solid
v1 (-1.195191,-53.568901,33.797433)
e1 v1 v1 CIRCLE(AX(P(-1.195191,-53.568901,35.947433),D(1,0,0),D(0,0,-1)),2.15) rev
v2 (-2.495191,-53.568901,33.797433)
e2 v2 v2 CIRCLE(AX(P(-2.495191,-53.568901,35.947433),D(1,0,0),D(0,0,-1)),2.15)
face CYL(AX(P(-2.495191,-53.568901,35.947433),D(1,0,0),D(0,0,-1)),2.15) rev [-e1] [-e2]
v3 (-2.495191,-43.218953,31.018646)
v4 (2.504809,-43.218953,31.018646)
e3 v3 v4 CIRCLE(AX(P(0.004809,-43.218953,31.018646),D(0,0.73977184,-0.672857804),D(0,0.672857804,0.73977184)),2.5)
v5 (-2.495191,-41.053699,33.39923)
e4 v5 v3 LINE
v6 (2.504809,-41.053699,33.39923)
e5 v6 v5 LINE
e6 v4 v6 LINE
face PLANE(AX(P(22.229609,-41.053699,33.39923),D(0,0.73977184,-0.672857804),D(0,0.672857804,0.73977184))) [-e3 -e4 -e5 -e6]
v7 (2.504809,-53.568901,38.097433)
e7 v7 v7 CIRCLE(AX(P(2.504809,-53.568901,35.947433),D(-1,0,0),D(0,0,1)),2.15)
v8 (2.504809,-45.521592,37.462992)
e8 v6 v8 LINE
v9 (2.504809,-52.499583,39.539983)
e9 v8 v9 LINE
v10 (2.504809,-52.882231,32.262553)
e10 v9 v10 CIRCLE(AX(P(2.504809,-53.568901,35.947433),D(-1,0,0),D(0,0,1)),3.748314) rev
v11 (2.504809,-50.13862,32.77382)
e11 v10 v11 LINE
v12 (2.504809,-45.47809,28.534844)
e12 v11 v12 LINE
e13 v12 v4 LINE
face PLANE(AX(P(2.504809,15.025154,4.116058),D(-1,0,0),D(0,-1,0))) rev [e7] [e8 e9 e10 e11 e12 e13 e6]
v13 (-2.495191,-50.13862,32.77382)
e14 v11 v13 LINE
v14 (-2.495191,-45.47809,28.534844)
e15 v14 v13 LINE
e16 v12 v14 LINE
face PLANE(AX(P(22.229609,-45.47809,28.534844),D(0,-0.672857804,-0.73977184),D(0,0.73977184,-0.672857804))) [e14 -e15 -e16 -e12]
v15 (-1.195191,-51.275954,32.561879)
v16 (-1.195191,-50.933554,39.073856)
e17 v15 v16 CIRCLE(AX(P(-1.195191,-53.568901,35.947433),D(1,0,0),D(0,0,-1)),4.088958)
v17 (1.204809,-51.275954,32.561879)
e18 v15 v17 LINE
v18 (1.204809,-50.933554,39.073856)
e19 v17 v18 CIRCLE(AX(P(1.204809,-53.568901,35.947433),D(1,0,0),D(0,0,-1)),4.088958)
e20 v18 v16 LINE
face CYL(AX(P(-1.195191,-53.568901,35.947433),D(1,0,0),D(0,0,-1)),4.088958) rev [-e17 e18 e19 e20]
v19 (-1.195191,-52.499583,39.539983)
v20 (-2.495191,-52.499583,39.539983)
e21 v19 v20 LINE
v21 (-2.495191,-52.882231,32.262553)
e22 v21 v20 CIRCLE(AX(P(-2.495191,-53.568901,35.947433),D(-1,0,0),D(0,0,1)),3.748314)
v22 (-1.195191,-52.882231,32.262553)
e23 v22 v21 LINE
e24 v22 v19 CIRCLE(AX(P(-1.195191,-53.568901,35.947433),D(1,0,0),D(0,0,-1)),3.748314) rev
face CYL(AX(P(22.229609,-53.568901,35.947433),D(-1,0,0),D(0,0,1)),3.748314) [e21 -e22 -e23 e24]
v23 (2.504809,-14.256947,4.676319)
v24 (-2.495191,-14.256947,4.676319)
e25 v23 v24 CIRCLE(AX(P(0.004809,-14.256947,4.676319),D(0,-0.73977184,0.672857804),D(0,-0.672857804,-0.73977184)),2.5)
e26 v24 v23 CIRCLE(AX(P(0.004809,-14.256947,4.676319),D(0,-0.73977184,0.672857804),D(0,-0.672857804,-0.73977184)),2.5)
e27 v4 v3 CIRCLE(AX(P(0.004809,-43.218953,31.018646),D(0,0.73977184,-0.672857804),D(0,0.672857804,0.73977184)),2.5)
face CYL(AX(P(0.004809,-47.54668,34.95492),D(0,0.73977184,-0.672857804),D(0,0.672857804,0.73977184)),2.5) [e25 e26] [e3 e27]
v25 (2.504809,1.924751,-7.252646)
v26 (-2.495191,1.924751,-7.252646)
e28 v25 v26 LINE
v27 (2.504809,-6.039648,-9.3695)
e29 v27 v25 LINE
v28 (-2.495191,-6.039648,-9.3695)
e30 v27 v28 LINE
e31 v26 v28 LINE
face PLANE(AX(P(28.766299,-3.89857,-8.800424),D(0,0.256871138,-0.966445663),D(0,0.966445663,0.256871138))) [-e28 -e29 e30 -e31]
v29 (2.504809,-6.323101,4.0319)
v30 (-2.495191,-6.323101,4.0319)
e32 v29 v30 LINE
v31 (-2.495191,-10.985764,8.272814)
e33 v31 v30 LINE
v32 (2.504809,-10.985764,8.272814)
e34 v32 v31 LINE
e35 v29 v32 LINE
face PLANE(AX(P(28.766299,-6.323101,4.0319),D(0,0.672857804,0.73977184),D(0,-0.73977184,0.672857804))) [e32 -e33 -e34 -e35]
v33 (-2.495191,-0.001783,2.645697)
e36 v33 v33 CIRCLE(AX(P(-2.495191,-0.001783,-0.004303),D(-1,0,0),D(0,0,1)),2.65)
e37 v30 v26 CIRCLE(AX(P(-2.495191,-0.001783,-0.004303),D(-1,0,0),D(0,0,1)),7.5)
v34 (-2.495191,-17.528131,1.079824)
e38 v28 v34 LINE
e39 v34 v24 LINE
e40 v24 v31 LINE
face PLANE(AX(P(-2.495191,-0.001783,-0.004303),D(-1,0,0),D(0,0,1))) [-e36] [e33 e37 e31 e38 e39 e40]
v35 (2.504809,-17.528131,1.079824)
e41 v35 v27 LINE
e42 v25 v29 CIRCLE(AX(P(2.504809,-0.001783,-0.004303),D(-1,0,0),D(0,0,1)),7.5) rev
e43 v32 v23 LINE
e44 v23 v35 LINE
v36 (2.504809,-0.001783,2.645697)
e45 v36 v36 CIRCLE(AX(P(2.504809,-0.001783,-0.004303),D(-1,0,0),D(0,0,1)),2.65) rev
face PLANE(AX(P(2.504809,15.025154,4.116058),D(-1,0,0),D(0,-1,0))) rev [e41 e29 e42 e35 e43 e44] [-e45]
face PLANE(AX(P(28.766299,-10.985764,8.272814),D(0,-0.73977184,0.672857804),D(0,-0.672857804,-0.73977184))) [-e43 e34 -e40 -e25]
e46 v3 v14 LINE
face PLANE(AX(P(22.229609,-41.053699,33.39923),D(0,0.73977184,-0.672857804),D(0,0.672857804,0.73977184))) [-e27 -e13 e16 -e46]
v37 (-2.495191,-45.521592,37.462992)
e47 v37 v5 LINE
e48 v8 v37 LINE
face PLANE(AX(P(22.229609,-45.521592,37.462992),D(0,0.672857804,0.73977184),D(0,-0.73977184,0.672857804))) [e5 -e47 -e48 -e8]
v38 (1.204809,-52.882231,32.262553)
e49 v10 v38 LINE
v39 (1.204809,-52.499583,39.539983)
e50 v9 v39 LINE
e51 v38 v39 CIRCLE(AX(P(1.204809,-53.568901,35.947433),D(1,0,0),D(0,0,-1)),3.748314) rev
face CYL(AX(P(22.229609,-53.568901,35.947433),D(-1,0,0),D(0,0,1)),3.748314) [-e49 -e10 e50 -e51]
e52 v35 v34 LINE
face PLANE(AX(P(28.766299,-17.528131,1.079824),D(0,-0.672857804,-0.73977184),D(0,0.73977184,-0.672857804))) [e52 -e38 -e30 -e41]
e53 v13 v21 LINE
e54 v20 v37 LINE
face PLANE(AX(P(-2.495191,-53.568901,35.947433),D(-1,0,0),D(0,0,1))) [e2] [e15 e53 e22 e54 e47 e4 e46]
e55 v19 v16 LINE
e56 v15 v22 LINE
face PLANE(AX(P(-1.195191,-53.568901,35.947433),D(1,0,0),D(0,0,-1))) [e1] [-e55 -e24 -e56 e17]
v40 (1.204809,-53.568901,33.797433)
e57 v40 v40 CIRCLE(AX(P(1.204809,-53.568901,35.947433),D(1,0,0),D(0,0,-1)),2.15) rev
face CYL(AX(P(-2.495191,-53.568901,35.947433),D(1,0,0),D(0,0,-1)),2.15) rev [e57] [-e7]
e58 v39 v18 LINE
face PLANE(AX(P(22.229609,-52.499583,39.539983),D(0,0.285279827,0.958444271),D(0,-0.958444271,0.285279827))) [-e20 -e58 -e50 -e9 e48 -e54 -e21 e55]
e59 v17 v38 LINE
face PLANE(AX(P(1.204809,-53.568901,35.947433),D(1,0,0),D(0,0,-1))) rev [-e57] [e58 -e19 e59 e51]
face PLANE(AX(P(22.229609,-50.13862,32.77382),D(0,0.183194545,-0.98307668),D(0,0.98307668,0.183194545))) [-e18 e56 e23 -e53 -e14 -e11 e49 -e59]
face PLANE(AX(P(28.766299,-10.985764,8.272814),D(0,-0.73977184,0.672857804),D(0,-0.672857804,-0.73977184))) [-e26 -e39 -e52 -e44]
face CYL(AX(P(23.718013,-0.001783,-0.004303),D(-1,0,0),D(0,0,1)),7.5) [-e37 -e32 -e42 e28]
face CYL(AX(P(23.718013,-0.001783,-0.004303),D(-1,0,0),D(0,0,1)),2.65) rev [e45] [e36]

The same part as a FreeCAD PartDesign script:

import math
import FreeCAD as App
import Part
import Sketcher
from FreeCAD import Vector
Q = App.Units.Quantity


def add_polygon(sketch, points):
    """Adds a closed chain of lines whose ends are joined by coincident constraints."""
    first, n = sketch.GeometryCount, len(points)
    for a, b in zip(points, points[1:] + points[:1]):
        sketch.addGeometry(Part.LineSegment(App.Vector(*a, 0), App.Vector(*b, 0)), False)
    for i in range(n):
        sketch.addConstraint(Sketcher.Constraint("Coincident", first + i, 2, first + (i + 1) % n, 1))

doc = App.newDocument("Part")
params = doc.addObject("Spreadsheet::Sheet", "Params")
for row, (alias, value) in enumerate([
    ("sketch1_diameter", "15 mm"),
    ("sketch1_diameter2", "5.3 mm"),
    ("pad1_length", "5 mm"),
    ("pad2_length", "5 mm"),
    ("sketch3_diameter", "5 mm"),
    ("pad3_length", "45 mm"),
    ("pad4_length", "5 mm"),
    ("sketch5_diameter", "4.3 mm"),
    ("pocket2_length", "2.4 mm"),
], start=1):
    params.set(f"A{row}", alias)
    params.set(f"B{row}", "=" + value)
    params.setAlias(f"B{row}", alias)

body = doc.addObject("PartDesign::Body", "Body")

# Sketch on YZ plane
sketch1 = body.newObject("Sketcher::SketchObject", "Sketch")
sketch1.AttachmentSupport = (doc.getObject("YZ_Plane"), [""])
sketch1.MapMode = "FlatFace"
sketch1.AttachmentOffset = App.Placement(Vector(0, 0, 18.504809), App.Rotation())
sketch1.addGeometry(Part.Circle(Vector(100.8, -0.4, 0), Vector(0, 0, 1), 7.5), False)
sketch1.addGeometry(Part.Circle(Vector(100.8, -0.4, 0), Vector(0, 0, 1), 2.6), False)
sketch1.addConstraint(Sketcher.Constraint("Coincident", 1, 3, 0, 3))
sketch1.addConstraint(Sketcher.Constraint("Diameter", 0, Q("15 mm")))
sketch1.addConstraint(Sketcher.Constraint("Diameter", 1, Q("5.3 mm")))
sketch1.addConstraint(Sketcher.Constraint("DistanceX", -1, 1, 0, 3, Q("100.788217 mm")))
sketch1.addConstraint(Sketcher.Constraint("DistanceY", 0, 3, -1, 1, Q("0.354303 mm")))
sketch1.setExpression("Constraints[1]", "Params.sketch1_diameter")
sketch1.setExpression("Constraints[2]", "Params.sketch1_diameter2")
pad1 = body.newObject("PartDesign::Pad", "Pad")
pad1.Profile = sketch1
pad1.setExpression("Length", "Params.pad1_length")

# Sketch on YZ plane
sketch2 = body.newObject("Sketcher::SketchObject", "Sketch001")
sketch2.AttachmentSupport = (doc.getObject("YZ_Plane"), [""])
sketch2.MapMode = "FlatFace"
sketch2.AttachmentOffset = App.Placement(Vector(0, 0, 18.504809), App.Rotation())
add_polygon(sketch2, [(102.7, -7.6), (96.9, -9.2), (94.8, -9.7), (83.3, 0.7), (89.8, 7.9), (94.5, 3.7), (94.6, 0.9)])  # lines 0-6
sketch2.addConstraint(Sketcher.Constraint("Parallel", 0, 1))
sketch2.addConstraint(Sketcher.Constraint("Perpendicular", 2, 3))
sketch2.addConstraint(Sketcher.Constraint("Perpendicular", 3, 4))
sketch2.addConstraint(Sketcher.Constraint("DistanceY", 1, 2, -1, 1, Q("9.7195 mm")))
sketch2.addConstraint(Sketcher.Constraint("DistanceX", -1, 1, 4, 2, Q("94.466899 mm")))
sketch2.addConstraint(Sketcher.Constraint("DistanceY", -1, 1, 4, 2, Q("3.6819 mm")))
sketch2.addConstraint(Sketcher.Constraint("DistanceY", 5, 2, 3, 2, Q("6.986202 mm")))
sketch2.addConstraint(Sketcher.Constraint("DistanceX", 1, 2, 6, 2, Q("7.964399 mm")))
sketch2.addConstraint(Sketcher.Constraint("Distance", 4, Q("6.302839 mm")))
sketch2.addConstraint(Sketcher.Constraint("Distance", 6, Q("11.797179 mm")))
sketch2.addConstraint(Sketcher.Constraint("DistanceX", -1, 1, 0, 2, Q("96.89143 mm")))
sketch2.addConstraint(Sketcher.Constraint("DistanceX", -1, 1, 1, 2, Q("94.750352 mm")))
sketch2.addConstraint(Sketcher.Constraint("DistanceX", -1, 1, 2, 2, Q("83.261869 mm")))
sketch2.addConstraint(Sketcher.Constraint("DistanceX", 5, 2, 1, 2, Q("0.175288 mm")))
pad2 = body.newObject("PartDesign::Pad", "Pad001")
pad2.Profile = sketch2
pad2.setExpression("Length", "Params.pad2_length")

# Sketch on an angled plane
sketch3 = body.newObject("Sketcher::SketchObject", "Sketch002")
sketch3.Placement = App.Placement(Vector(0, 45.20281, -41.114114), App.Rotation(Vector(1, 0, 0), Vector(0, 0.672857804, 0.73977184), Vector(0, -0.73977184, 0.672857804), "ZXY"))
sketch3.addGeometry(Part.Circle(Vector(21, 61.4, 0), Vector(0, 0, 1), 2.5), False)
sketch3.addConstraint(Sketcher.Constraint("Diameter", 0, Q("5 mm")))
sketch3.addConstraint(Sketcher.Constraint("DistanceX", -1, 1, 0, 3, Q("21.004809 mm")))
sketch3.addConstraint(Sketcher.Constraint("DistanceY", -1, 1, 0, 3, Q("61.424929 mm")))
sketch3.setExpression("Constraints[0]", "Params.sketch3_diameter")
pad3 = body.newObject("PartDesign::Pad", "Pad002")
pad3.Profile = sketch3
pad3.setExpression("Length", "Params.pad3_length")

# Sketch on YZ plane
sketch4 = body.newObject("Sketcher::SketchObject", "Sketch003")
sketch4.AttachmentSupport = (doc.getObject("YZ_Plane"), [""])
sketch4.MapMode = "FlatFace"
sketch4.AttachmentOffset = App.Placement(Vector(0, 0, 18.504809), App.Rotation())
sketch4.addGeometry(Part.LineSegment(Vector(48.3, 39.2, 0), Vector(55.3, 37.1, 0)), False)
sketch4.addGeometry(Part.LineSegment(Vector(55.3, 37.1, 0), Vector(59.7, 33, 0)), False)
sketch4.addGeometry(Part.LineSegment(Vector(59.7, 33, 0), Vector(55.3, 28.2, 0)), False)
sketch4.addGeometry(Part.LineSegment(Vector(55.3, 28.2, 0), Vector(50.7, 32.4, 0)), False)
sketch4.addGeometry(Part.LineSegment(Vector(50.7, 32.4, 0), Vector(47.9, 31.9, 0)), False)
sketch4.addGeometry(Part.ArcOfCircle(Part.Circle(Vector(47.2, 35.6, 0), Vector(0, 0, 1), 3.7), math.radians(73), math.radians(281)), False)
sketch4.addConstraint(Sketcher.Constraint("Coincident", 0, 2, 1, 1))
sketch4.addConstraint(Sketcher.Constraint("Coincident", 1, 2, 2, 1))
sketch4.addConstraint(Sketcher.Constraint("Coincident", 2, 2, 3, 1))
sketch4.addConstraint(Sketcher.Constraint("Coincident", 3, 2, 4, 1))
sketch4.addConstraint(Sketcher.Constraint("Tangent", 4, 2, 5, 2))
sketch4.addConstraint(Sketcher.Constraint("Tangent", 5, 1, 0, 1))
sketch4.addConstraint(Sketcher.Constraint("Perpendicular", 1, 2))
sketch4.addConstraint(Sketcher.Constraint("Perpendicular", 2, 3))
sketch4.addConstraint(Sketcher.Constraint("Radius", 5, Q("3.748314 mm")))
sketch4.addConstraint(Sketcher.Constraint("DistanceX", -1, 1, 5, 3, Q("47.221099 mm")))
sketch4.addConstraint(Sketcher.Constraint("DistanceX", -1, 1, 1, 2, Q("59.736301 mm")))
sketch4.addConstraint(Sketcher.Constraint("Distance", 0, Q("7.280538 mm")))
sketch4.addConstraint(Sketcher.Constraint("Distance", 2, Q("6.575521 mm")))
sketch4.addConstraint(Sketcher.Constraint("Distance", 4, Q("2.790841 mm")))
sketch4.addConstraint(Sketcher.Constraint("DistanceY", -1, 1, 1, 2, Q("33.04923 mm")))
sketch4.addConstraint(Sketcher.Constraint("DistanceX", -1, 1, 2, 2, Q("55.31191 mm")))
sketch4.addConstraint(Sketcher.Constraint("DistanceX", -1, 1, 3, 2, Q("50.65138 mm")))
pad4 = body.newObject("PartDesign::Pad", "Pad003")
pad4.Profile = sketch4
pad4.setExpression("Length", "Params.pad4_length")

# Sketch on YZ plane
sketch5 = body.newObject("Sketcher::SketchObject", "Sketch004")
sketch5.AttachmentSupport = (doc.getObject("YZ_Plane"), [""])
sketch5.MapMode = "FlatFace"
sketch5.AttachmentOffset = App.Placement(Vector(0, 0, 23.504809), App.Rotation())
sketch5.addGeometry(Part.Circle(Vector(47.2, 35.6, 0), Vector(0, 0, 1), 2.1), False)
sketch5.addConstraint(Sketcher.Constraint("Diameter", 0, Q("4.3 mm")))
sketch5.addConstraint(Sketcher.Constraint("DistanceX", -1, 1, 0, 3, Q("47.221099 mm")))
sketch5.addConstraint(Sketcher.Constraint("DistanceY", -1, 1, 0, 3, Q("35.597433 mm")))
sketch5.setExpression("Constraints[0]", "Params.sketch5_diameter")
pocket1 = body.newObject("PartDesign::Pocket", "Pocket")
pocket1.Profile = sketch5
pocket1.Type = "ThroughAll"
pocket1.Midplane = True

# Sketch on YZ plane
sketch6 = body.newObject("Sketcher::SketchObject", "Sketch005")
sketch6.AttachmentSupport = (doc.getObject("YZ_Plane"), [""])
sketch6.MapMode = "FlatFace"
sketch6.AttachmentOffset = App.Placement(Vector(0, 0, 21.004809), App.Rotation())
sketch6.addGeometry(Part.Circle(Vector(47.2, 35.6, 0), Vector(0, 0, 1), 4.1), False)
sketch6.addConstraint(Sketcher.Constraint("Diameter", 0, Q("8.177916 mm")))
sketch6.addConstraint(Sketcher.Constraint("DistanceX", -1, 1, 0, 3, Q("47.221099 mm")))
sketch6.addConstraint(Sketcher.Constraint("DistanceY", -1, 1, 0, 3, Q("35.597433 mm")))
pocket2 = body.newObject("PartDesign::Pocket", "Pocket001")
pocket2.Profile = sketch6
pocket2.setExpression("Length", "Params.pocket2_length")
pocket2.Midplane = True
body2 = doc.addObject("PartDesign::Body", "Body001")
doc.recompute()

body.Placement = App.Placement(Vector(-21, -100.79, 0.35), App.Rotation(Vector(0, 0, 1), 0))
boolean = body2.newObject("PartDesign::Boolean", "Boolean")
boolean.Type = "Fuse"
boolean.addObjects([body])

doc.recompute()
